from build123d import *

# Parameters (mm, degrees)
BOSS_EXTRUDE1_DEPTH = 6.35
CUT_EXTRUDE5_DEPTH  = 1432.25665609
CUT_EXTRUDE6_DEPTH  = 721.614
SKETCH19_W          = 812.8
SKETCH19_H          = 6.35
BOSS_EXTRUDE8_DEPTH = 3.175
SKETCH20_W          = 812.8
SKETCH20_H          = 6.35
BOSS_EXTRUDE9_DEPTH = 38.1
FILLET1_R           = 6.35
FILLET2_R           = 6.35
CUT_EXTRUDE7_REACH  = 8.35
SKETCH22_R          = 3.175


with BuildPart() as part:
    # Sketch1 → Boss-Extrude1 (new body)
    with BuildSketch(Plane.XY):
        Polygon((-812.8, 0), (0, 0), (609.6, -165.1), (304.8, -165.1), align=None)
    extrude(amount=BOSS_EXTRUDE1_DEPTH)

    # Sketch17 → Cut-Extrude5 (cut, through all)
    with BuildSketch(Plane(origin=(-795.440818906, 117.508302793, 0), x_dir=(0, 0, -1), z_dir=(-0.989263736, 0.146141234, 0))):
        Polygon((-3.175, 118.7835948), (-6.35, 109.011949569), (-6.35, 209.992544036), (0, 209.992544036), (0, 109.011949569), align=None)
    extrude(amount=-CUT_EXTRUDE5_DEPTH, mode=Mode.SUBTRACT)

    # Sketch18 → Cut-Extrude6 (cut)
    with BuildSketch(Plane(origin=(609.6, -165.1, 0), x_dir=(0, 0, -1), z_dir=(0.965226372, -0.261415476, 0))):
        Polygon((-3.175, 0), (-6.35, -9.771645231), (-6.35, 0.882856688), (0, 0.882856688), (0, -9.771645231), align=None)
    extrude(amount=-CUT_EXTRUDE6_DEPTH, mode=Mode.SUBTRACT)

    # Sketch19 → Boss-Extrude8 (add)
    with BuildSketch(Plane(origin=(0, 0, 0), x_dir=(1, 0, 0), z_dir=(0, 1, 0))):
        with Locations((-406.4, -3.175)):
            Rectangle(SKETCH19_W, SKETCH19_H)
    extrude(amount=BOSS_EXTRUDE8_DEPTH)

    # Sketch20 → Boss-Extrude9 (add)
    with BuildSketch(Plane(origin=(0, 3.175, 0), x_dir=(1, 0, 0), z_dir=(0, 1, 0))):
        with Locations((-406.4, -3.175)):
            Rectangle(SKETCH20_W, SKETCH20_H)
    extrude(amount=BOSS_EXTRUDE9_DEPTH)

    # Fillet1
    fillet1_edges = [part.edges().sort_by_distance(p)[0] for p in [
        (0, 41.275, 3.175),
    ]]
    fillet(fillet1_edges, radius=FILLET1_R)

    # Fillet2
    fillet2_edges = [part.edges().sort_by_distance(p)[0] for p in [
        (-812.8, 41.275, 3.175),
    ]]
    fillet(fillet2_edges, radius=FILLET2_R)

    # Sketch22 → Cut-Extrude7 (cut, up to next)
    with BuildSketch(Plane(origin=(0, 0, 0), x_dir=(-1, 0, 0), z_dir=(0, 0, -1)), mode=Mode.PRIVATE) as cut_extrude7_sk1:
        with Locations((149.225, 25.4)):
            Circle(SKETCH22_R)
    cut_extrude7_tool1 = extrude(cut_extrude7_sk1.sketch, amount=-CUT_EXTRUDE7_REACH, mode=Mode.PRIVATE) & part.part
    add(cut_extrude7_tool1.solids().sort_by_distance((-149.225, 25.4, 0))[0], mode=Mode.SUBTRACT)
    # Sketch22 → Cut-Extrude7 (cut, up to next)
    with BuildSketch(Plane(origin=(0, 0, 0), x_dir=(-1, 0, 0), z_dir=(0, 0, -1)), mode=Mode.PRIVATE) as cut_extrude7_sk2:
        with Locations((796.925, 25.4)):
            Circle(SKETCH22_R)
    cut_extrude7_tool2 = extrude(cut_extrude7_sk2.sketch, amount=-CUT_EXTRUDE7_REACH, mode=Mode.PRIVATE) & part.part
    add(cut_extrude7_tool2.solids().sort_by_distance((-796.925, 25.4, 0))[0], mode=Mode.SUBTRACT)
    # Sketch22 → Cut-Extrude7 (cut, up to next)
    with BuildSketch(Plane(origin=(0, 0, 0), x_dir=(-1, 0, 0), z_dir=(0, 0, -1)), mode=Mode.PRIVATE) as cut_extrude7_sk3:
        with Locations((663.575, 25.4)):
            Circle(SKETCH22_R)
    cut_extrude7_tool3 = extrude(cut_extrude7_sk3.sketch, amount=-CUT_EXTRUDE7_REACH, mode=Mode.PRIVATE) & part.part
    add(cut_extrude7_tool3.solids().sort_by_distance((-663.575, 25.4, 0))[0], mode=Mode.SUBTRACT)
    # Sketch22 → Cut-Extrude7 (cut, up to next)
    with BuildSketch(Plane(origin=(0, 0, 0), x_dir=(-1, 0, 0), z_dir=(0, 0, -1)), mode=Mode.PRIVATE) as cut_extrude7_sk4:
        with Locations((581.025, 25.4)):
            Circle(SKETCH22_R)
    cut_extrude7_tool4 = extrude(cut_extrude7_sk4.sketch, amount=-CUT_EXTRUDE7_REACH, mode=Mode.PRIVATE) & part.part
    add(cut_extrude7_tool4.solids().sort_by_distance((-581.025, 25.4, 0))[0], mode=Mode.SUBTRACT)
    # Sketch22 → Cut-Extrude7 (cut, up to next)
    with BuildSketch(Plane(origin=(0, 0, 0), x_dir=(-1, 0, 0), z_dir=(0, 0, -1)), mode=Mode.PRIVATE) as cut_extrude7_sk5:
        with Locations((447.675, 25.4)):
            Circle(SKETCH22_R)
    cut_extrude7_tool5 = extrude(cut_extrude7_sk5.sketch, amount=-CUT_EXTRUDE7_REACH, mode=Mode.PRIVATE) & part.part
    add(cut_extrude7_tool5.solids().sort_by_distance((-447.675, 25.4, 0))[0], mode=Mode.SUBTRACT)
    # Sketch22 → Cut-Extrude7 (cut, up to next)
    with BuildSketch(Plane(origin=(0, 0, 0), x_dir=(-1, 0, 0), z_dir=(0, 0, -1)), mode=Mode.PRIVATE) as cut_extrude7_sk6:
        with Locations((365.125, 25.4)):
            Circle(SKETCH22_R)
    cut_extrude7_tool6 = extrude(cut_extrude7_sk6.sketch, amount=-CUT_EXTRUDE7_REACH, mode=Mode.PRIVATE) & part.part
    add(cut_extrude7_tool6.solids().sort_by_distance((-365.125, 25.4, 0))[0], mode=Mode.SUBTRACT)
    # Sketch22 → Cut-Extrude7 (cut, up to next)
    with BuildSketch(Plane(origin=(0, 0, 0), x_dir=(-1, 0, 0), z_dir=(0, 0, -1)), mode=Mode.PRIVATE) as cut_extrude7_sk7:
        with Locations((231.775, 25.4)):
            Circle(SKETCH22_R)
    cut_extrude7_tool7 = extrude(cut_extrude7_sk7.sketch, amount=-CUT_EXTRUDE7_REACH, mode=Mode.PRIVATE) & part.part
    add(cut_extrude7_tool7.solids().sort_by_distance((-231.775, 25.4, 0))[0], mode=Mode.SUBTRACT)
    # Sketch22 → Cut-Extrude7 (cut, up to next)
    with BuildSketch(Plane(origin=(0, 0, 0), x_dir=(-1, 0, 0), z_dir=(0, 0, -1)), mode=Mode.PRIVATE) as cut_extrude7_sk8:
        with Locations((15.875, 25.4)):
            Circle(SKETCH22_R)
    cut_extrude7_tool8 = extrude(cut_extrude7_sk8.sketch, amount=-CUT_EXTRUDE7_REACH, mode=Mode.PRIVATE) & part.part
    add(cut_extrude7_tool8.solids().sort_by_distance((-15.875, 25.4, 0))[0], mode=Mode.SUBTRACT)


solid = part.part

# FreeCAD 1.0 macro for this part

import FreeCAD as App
import Part
import Sketcher
Q = App.Units.Quantity


def edges_at(feature, points):
    """Names of the edges that pass closest to the given points."""
    edges = feature.Shape.Edges
    near = lambda p: min(range(len(edges)), key=lambda i: edges[i].distToShape(Part.Vertex(*p))[0])
    return sorted({f"Edge{near(p) + 1}" for p in points})


def add_polygon(sketch, points):
    """Adds a closed chain of lines whose ends are joined by coincident constraints."""
    first, n = sketch.GeometryCount, len(points)
    for a, b in zip(points, points[1:] + points[:1]):
        sketch.addGeometry(Part.LineSegment(App.Vector(*a, 0), App.Vector(*b, 0)), False)
    for i in range(n):
        sketch.addConstraint(Sketcher.Constraint("Coincident", first + i, 2, first + (i + 1) % n, 1))

doc = App.newDocument("Part")
body = doc.addObject("PartDesign::Body", "Body")

sketch1 = body.newObject("Sketcher::SketchObject", "Sketch")
sketch1.AttachmentSupport = (doc.getObject("XY_Plane"), [""])
sketch1.MapMode = "FlatFace"
add_polygon(sketch1, [(0, 0), (-813, 0), (305, -165), (610, -165)])
sketch1.addConstraint(Sketcher.Constraint("Horizontal", 0))
sketch1.addConstraint(Sketcher.Constraint("Horizontal", 2))
sketch1.addConstraint(Sketcher.Constraint("Coincident", 3, 2, -1, 1))
sketch1.addConstraint(Sketcher.Constraint("DistanceX", 0, 2, 0, 1, Q("32 in")))
sketch1.addConstraint(Sketcher.Constraint("DistanceX", 2, 1, 2, 2, Q("12 in")))
sketch1.addConstraint(Sketcher.Constraint("DistanceX", -1, 1, 1, 2, Q("12 in")))
sketch1.addConstraint(Sketcher.Constraint("DistanceY", 1, 2, -1, 1, Q("6.5 in")))
pad1 = body.newObject("PartDesign::Pad", "Pad")
pad1.Profile = sketch1
pad1.Length = Q("0.25 in")

sketch2 = body.newObject("Sketcher::SketchObject", "Sketch001")
sketch2.Placement = App.Placement(App.Vector(-795.440819, 117.508303, 0), App.Rotation(App.Vector(0, 0, -1), App.Vector(-0.146141234, -0.989263736, 0), App.Vector(-0.989263736, 0.146141234, 0), "ZXY"))
add_polygon(sketch2, [(-6, 109), (-3, 119), (0, 109), (0, 210), (-6, 210)])
sketch2.addConstraint(Sketcher.Constraint("Vertical", 2))
sketch2.addConstraint(Sketcher.Constraint("Horizontal", 3))
sketch2.addConstraint(Sketcher.Constraint("Vertical", 4))
sketch2.addConstraint(Sketcher.Constraint("PointOnObject", 1, 2, -2))
sketch2.addConstraint(Sketcher.Constraint("Horizontal", 1, 2, 4, 2))
sketch2.addConstraint(Sketcher.Constraint("Equal", 0, 1))
sketch2.addConstraint(Sketcher.Constraint("Angle", 0, Q("72 deg")))
sketch2.addConstraint(Sketcher.Constraint("DistanceX", 3, 2, 3, 1, Q("0.25 in")))
sketch2.addConstraint(Sketcher.Constraint("DistanceY", 2, 1, 2, 2, 100.980594))
sketch2.addConstraint(Sketcher.Constraint("DistanceY", -1, 1, 1, 2, 109.01195))
pocket1 = body.newObject("PartDesign::Pocket", "Pocket")
pocket1.Profile = sketch2
pocket1.Type = "ThroughAll"

sketch3 = body.newObject("Sketcher::SketchObject", "Sketch002")
sketch3.Placement = App.Placement(App.Vector(609.6, -165.1, 0), App.Rotation(App.Vector(0, 0, -1), App.Vector(0.261415476, 0.965226372, 0), App.Vector(0.965226372, -0.261415476, 0), "ZXY"))
add_polygon(sketch3, [(-6, -10), (-3, 0), (0, -10), (0, 1), (-6, 1)])
sketch3.addConstraint(Sketcher.Constraint("Vertical", 2))
sketch3.addConstraint(Sketcher.Constraint("Horizontal", 3))
sketch3.addConstraint(Sketcher.Constraint("Vertical", 4))
sketch3.addConstraint(Sketcher.Constraint("PointOnObject", 0, 2, -1))
sketch3.addConstraint(Sketcher.Constraint("PointOnObject", 1, 2, -2))
sketch3.addConstraint(Sketcher.Constraint("Horizontal", 1, 2, 4, 2))
sketch3.addConstraint(Sketcher.Constraint("Equal", 0, 1))
sketch3.addConstraint(Sketcher.Constraint("Angle", 0, Q("72 deg")))
sketch3.addConstraint(Sketcher.Constraint("DistanceX", 3, 2, 3, 1, Q("0.25 in")))
sketch3.addConstraint(Sketcher.Constraint("DistanceY", 2, 1, 2, 2, 10.654502))
pocket2 = body.newObject("PartDesign::Pocket", "Pocket001")
pocket2.Profile = sketch3
pocket2.Length = Q("28.41 in")

sketch4 = body.newObject("Sketcher::SketchObject", "Sketch003")
sketch4.AttachmentSupport = (doc.getObject("XZ_Plane"), [""])
sketch4.MapMode = "FlatFace"
add_polygon(sketch4, [(-813, 0), (-813, 6), (0, 6), (0, 0)])
sketch4.addConstraint(Sketcher.Constraint("Vertical", 0))
sketch4.addConstraint(Sketcher.Constraint("Horizontal", 1))
sketch4.addConstraint(Sketcher.Constraint("Vertical", 2))
sketch4.addConstraint(Sketcher.Constraint("Horizontal", 3))
sketch4.addConstraint(Sketcher.Constraint("Coincident", 2, 2, -1, 1))
sketch4.addConstraint(Sketcher.Constraint("DistanceX", 1, 1, 1, 2, Q("32 in")))
sketch4.addConstraint(Sketcher.Constraint("DistanceY", 0, 1, 0, 2, Q("0.25 in")))
pad2 = body.newObject("PartDesign::Pad", "Pad001")
pad2.Profile = sketch4
pad2.Length = Q("0.125 in")
pad2.Reversed = True

sketch5 = body.newObject("Sketcher::SketchObject", "Sketch004")
sketch5.AttachmentSupport = (doc.getObject("XZ_Plane"), [""])
sketch5.MapMode = "FlatFace"
sketch5.AttachmentOffset = App.Placement(App.Vector(0, 0, -0.125 * 25.4), App.Rotation())
add_polygon(sketch5, [(-813, 0), (-813, 6), (0, 6), (0, 0)])
sketch5.addConstraint(Sketcher.Constraint("Vertical", 0))
sketch5.addConstraint(Sketcher.Constraint("Horizontal", 1))
sketch5.addConstraint(Sketcher.Constraint("Vertical", 2))
sketch5.addConstraint(Sketcher.Constraint("Horizontal", 3))
sketch5.addConstraint(Sketcher.Constraint("Coincident", 2, 2, -1, 1))
sketch5.addConstraint(Sketcher.Constraint("DistanceX", 1, 1, 1, 2, Q("32 in")))
sketch5.addConstraint(Sketcher.Constraint("DistanceY", 0, 1, 0, 2, Q("0.25 in")))
pad3 = body.newObject("PartDesign::Pad", "Pad002")
pad3.Profile = sketch5
pad3.Length = Q("1.5 in")
pad3.Reversed = True
doc.recompute()

fillet = body.newObject("PartDesign::Fillet", "Fillet")
fillet.Base = (pad3, edges_at(pad3, [(0, 41.275, 3.175)]))
fillet.Radius = Q("0.25 in")
doc.recompute()

fillet2 = body.newObject("PartDesign::Fillet", "Fillet001")
fillet2.Base = (fillet, edges_at(fillet, [(-812.8, 41.275, 3.175)]))
fillet2.Radius = Q("0.25 in")

sketch6 = body.newObject("Sketcher::SketchObject", "Sketch005")
sketch6.AttachmentSupport = (doc.getObject("XY_Plane"), [""])
sketch6.MapMode = "FlatFace"
sketch6.addGeometry(Part.Circle(App.Vector(-149.2, 25.4, 0), App.Vector(0, 0, 1), 3.2), False)
sketch6.addConstraint(Sketcher.Constraint("Diameter", 0, Q("0.25 in")))
sketch6.addConstraint(Sketcher.Constraint("DistanceY", -1, 1, 0, 3, Q("1 in")))
sketch6.addConstraint(Sketcher.Constraint("DistanceX", 0, 3, -1, 1, Q("5.875 in")))
pocket3 = body.newObject("PartDesign::Pocket", "Pocket002")
pocket3.Profile = sketch6
pocket3.Type = "UpToFirst"
pocket3.Reversed = True

sketch7 = body.newObject("Sketcher::SketchObject", "Sketch006")
sketch7.AttachmentSupport = (doc.getObject("XY_Plane"), [""])
sketch7.MapMode = "FlatFace"
sketch7.addGeometry(Part.Circle(App.Vector(-796.9, 25.4, 0), App.Vector(0, 0, 1), 3.2), False)
sketch7.addConstraint(Sketcher.Constraint("Diameter", 0, Q("0.25 in")))
sketch7.addConstraint(Sketcher.Constraint("DistanceY", -1, 1, 0, 3, Q("1 in")))
sketch7.addConstraint(Sketcher.Constraint("DistanceX", 0, 3, -1, 1, Q("31.375 in")))
pocket4 = body.newObject("PartDesign::Pocket", "Pocket003")
pocket4.Profile = sketch7
pocket4.Type = "UpToFirst"
pocket4.Reversed = True

sketch8 = body.newObject("Sketcher::SketchObject", "Sketch007")
sketch8.AttachmentSupport = (doc.getObject("XY_Plane"), [""])
sketch8.MapMode = "FlatFace"
sketch8.addGeometry(Part.Circle(App.Vector(-663.6, 25.4, 0), App.Vector(0, 0, 1), 3.2), False)
sketch8.addConstraint(Sketcher.Constraint("Diameter", 0, Q("0.25 in")))
sketch8.addConstraint(Sketcher.Constraint("DistanceY", -1, 1, 0, 3, Q("1 in")))
sketch8.addConstraint(Sketcher.Constraint("DistanceX", 0, 3, -1, 1, Q("26.125 in")))
pocket5 = body.newObject("PartDesign::Pocket", "Pocket004")
pocket5.Profile = sketch8
pocket5.Type = "UpToFirst"
pocket5.Reversed = True

sketch9 = body.newObject("Sketcher::SketchObject", "Sketch008")
sketch9.AttachmentSupport = (doc.getObject("XY_Plane"), [""])
sketch9.MapMode = "FlatFace"
sketch9.addGeometry(Part.Circle(App.Vector(-581, 25.4, 0), App.Vector(0, 0, 1), 3.2), False)
sketch9.addConstraint(Sketcher.Constraint("Diameter", 0, Q("0.25 in")))
sketch9.addConstraint(Sketcher.Constraint("DistanceY", -1, 1, 0, 3, Q("1 in")))
sketch9.addConstraint(Sketcher.Constraint("DistanceX", 0, 3, -1, 1, Q("22.875 in")))
pocket6 = body.newObject("PartDesign::Pocket", "Pocket005")
pocket6.Profile = sketch9
pocket6.Type = "UpToFirst"
pocket6.Reversed = True

sketch10 = body.newObject("Sketcher::SketchObject", "Sketch009")
sketch10.AttachmentSupport = (doc.getObject("XY_Plane"), [""])
sketch10.MapMode = "FlatFace"
sketch10.addGeometry(Part.Circle(App.Vector(-447.7, 25.4, 0), App.Vector(0, 0, 1), 3.2), False)
sketch10.addConstraint(Sketcher.Constraint("Diameter", 0, Q("0.25 in")))
sketch10.addConstraint(Sketcher.Constraint("DistanceY", -1, 1, 0, 3, Q("1 in")))
sketch10.addConstraint(Sketcher.Constraint("DistanceX", 0, 3, -1, 1, Q("17.625 in")))
pocket7 = body.newObject("PartDesign::Pocket", "Pocket006")
pocket7.Profile = sketch10
pocket7.Type = "UpToFirst"
pocket7.Reversed = True

sketch11 = body.newObject("Sketcher::SketchObject", "Sketch010")
sketch11.AttachmentSupport = (doc.getObject("XY_Plane"), [""])
sketch11.MapMode = "FlatFace"
sketch11.addGeometry(Part.Circle(App.Vector(-365.1, 25.4, 0), App.Vector(0, 0, 1), 3.2), False)
sketch11.addConstraint(Sketcher.Constraint("Diameter", 0, Q("0.25 in")))
sketch11.addConstraint(Sketcher.Constraint("DistanceY", -1, 1, 0, 3, Q("1 in")))
sketch11.addConstraint(Sketcher.Constraint("DistanceX", 0, 3, -1, 1, Q("14.375 in")))
pocket8 = body.newObject("PartDesign::Pocket", "Pocket007")
pocket8.Profile = sketch11
pocket8.Type = "UpToFirst"
pocket8.Reversed = True

sketch12 = body.newObject("Sketcher::SketchObject", "Sketch011")
sketch12.AttachmentSupport = (doc.getObject("XY_Plane"), [""])
sketch12.MapMode = "FlatFace"
sketch12.addGeometry(Part.Circle(App.Vector(-231.8, 25.4, 0), App.Vector(0, 0, 1), 3.2), False)
sketch12.addConstraint(Sketcher.Constraint("Diameter", 0, Q("0.25 in")))
sketch12.addConstraint(Sketcher.Constraint("DistanceY", -1, 1, 0, 3, Q("1 in")))
sketch12.addConstraint(Sketcher.Constraint("DistanceX", 0, 3, -1, 1, Q("9.125 in")))
pocket9 = body.newObject("PartDesign::Pocket", "Pocket008")
pocket9.Profile = sketch12
pocket9.Type = "UpToFirst"
pocket9.Reversed = True

sketch13 = body.newObject("Sketcher::SketchObject", "Sketch012")
sketch13.AttachmentSupport = (doc.getObject("XY_Plane"), [""])
sketch13.MapMode = "FlatFace"
sketch13.addGeometry(Part.Circle(App.Vector(-15.9, 25.4, 0), App.Vector(0, 0, 1), 3.2), False)
sketch13.addConstraint(Sketcher.Constraint("Diameter", 0, Q("0.25 in")))
sketch13.addConstraint(Sketcher.Constraint("DistanceY", -1, 1, 0, 3, Q("1 in")))
sketch13.addConstraint(Sketcher.Constraint("DistanceX", 0, 3, -1, 1, Q("0.625 in")))
pocket10 = body.newObject("PartDesign::Pocket", "Pocket009")
pocket10.Profile = sketch13
pocket10.Type = "UpToFirst"
pocket10.Reversed = True

doc.recompute()
